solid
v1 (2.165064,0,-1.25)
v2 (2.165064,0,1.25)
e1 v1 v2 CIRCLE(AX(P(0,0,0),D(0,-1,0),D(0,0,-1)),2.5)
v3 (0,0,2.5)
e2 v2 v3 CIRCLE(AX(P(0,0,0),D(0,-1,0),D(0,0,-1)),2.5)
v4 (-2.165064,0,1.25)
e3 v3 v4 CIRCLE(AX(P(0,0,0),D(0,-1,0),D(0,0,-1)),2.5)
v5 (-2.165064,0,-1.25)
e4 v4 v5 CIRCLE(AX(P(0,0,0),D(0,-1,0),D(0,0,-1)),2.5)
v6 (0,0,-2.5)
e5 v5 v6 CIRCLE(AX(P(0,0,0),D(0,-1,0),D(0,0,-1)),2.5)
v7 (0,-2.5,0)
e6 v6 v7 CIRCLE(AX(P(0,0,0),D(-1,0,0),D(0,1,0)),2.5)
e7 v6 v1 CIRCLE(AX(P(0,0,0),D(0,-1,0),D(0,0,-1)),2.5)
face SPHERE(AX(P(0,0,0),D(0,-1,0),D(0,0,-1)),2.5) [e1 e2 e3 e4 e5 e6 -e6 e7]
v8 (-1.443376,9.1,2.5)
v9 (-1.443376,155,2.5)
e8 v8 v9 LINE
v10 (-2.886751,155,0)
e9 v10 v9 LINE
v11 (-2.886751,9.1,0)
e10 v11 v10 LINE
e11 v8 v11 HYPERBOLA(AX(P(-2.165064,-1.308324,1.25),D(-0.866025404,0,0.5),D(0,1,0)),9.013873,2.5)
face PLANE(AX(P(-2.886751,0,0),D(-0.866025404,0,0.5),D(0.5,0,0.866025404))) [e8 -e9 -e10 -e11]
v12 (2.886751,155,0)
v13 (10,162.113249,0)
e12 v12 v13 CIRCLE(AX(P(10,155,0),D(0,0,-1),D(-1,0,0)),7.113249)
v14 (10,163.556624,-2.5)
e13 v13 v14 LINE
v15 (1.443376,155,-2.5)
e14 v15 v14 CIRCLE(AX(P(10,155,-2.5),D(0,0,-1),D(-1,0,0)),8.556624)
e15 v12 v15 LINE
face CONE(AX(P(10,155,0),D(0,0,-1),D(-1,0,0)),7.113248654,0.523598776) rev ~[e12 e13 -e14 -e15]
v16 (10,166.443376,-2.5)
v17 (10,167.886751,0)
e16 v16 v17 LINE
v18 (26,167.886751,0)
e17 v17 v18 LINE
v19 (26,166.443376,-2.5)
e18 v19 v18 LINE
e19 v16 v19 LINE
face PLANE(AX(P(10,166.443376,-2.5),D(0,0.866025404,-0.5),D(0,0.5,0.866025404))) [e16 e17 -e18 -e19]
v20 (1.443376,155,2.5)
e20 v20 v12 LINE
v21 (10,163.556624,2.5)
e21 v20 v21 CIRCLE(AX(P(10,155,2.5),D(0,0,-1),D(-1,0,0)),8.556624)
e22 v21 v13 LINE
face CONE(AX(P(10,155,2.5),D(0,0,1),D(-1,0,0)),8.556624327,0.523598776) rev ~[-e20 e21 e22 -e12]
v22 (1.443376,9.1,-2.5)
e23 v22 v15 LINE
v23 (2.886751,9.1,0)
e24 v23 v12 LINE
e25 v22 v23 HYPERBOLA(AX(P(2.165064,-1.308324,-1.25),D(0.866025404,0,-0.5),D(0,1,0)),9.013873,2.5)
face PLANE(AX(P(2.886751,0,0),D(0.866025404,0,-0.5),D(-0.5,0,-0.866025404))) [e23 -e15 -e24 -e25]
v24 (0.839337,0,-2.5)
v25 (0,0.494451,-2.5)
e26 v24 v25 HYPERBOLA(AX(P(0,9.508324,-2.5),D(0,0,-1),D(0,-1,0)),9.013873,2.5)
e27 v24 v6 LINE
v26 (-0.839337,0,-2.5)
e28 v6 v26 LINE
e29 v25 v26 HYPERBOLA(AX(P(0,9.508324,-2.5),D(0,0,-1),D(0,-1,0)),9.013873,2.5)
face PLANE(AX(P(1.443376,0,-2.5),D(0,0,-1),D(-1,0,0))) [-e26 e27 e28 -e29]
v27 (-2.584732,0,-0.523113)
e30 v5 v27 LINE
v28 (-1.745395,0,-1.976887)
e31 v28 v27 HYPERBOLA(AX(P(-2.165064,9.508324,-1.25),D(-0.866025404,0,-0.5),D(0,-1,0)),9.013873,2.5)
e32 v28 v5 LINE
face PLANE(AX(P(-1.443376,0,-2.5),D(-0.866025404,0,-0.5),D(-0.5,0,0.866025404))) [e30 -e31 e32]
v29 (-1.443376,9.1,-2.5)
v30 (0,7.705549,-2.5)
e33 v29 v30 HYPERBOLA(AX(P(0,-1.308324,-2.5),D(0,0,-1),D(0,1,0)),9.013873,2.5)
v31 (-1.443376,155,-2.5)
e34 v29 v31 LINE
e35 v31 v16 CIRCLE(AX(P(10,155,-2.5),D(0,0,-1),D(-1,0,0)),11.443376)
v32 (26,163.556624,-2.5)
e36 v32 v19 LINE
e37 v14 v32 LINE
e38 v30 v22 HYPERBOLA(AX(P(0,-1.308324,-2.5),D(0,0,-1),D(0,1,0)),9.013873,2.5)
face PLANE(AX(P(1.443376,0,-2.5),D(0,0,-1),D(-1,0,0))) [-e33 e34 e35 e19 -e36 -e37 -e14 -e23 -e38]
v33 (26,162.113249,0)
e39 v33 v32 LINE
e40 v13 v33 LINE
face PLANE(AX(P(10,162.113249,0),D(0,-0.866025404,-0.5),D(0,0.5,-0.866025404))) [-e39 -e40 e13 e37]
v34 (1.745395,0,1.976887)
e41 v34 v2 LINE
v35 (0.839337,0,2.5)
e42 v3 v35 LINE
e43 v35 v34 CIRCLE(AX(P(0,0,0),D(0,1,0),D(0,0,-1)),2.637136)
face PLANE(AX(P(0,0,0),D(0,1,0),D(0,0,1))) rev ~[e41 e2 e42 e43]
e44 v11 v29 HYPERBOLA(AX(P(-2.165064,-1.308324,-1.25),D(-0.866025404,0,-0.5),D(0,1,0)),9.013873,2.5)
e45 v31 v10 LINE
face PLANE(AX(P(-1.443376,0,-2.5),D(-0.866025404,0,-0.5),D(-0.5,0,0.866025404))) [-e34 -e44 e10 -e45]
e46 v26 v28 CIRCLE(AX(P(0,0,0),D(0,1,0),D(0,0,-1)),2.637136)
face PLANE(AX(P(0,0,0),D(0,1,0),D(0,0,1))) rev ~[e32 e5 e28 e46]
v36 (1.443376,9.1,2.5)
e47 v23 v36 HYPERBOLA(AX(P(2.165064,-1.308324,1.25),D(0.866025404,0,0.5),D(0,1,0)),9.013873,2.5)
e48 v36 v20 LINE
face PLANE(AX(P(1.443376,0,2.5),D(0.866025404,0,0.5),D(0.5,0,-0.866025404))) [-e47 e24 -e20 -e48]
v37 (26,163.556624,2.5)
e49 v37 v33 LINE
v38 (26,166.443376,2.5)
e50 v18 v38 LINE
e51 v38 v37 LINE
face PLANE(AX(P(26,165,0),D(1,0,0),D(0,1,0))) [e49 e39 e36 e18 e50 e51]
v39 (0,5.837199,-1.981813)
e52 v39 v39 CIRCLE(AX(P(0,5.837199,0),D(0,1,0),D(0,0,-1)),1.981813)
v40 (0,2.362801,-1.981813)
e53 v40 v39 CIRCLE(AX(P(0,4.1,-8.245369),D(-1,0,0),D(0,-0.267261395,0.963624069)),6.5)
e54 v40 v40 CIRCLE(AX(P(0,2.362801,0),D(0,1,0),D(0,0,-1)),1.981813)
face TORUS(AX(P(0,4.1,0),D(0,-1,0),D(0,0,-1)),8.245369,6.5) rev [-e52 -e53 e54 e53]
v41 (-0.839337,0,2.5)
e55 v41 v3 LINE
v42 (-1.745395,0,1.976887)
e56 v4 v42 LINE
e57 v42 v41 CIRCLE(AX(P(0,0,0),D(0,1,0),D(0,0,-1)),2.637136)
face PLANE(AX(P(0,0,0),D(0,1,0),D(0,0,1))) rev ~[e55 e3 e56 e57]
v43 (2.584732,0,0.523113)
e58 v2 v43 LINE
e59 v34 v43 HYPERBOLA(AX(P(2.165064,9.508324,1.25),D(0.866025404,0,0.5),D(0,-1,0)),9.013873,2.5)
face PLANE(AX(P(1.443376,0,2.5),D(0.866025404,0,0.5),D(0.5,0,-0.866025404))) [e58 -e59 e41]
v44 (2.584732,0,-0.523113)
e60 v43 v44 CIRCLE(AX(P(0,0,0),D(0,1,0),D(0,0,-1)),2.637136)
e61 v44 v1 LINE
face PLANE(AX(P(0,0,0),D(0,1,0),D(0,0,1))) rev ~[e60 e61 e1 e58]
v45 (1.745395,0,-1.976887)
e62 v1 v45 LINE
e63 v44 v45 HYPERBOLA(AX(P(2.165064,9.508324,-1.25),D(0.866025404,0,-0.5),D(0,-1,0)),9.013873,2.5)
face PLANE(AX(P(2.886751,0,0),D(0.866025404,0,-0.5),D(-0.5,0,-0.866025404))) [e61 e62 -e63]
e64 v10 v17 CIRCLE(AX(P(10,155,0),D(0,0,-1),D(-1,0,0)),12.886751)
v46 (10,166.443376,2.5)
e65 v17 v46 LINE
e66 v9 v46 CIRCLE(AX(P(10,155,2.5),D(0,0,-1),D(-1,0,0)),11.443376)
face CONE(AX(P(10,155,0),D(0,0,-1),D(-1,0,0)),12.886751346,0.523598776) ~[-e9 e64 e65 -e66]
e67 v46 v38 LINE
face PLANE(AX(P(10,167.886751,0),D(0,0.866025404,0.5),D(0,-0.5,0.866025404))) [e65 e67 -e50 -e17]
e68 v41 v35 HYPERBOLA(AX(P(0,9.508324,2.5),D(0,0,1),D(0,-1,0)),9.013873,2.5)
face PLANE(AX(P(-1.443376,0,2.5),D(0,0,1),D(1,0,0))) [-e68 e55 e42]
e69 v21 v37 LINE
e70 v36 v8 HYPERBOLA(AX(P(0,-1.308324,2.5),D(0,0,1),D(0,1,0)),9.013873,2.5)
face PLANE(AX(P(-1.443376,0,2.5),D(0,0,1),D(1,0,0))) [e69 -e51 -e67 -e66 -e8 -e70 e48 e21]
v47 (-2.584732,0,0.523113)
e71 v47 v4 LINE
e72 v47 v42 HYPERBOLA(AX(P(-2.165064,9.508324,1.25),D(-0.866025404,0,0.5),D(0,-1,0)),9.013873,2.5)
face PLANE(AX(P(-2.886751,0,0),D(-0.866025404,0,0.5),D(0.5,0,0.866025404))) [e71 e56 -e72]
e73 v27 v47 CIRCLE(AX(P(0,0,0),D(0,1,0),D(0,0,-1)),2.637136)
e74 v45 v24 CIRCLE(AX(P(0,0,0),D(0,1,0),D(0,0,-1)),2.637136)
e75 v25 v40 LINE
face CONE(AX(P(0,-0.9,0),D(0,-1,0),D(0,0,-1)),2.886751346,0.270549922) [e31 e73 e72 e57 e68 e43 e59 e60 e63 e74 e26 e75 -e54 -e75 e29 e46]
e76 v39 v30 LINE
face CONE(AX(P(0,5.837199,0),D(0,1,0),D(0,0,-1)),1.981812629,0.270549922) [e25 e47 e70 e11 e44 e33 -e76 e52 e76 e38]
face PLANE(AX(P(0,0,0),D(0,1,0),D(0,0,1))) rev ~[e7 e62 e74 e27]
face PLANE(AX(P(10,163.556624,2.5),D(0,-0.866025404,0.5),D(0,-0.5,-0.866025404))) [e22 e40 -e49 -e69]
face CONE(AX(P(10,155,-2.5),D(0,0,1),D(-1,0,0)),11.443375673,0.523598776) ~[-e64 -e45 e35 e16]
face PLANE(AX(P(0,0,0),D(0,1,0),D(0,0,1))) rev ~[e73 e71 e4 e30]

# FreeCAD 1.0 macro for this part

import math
import FreeCAD as App
import Part
import Sketcher
Q = App.Units.Quantity


def add_polygon(sketch, points):
    """Adds a closed chain of lines whose ends are joined by coincident constraints."""
    first, n = sketch.GeometryCount, len(points)
    for a, b in zip(points, points[1:] + points[:1]):
        sketch.addGeometry(Part.LineSegment(App.Vector(*a, 0), App.Vector(*b, 0)), False)
    for i in range(n):
        sketch.addConstraint(Sketcher.Constraint("Coincident", first + i, 2, first + (i + 1) % n, 1))

doc = App.newDocument("Part")
params = doc.addObject("Spreadsheet::Sheet", "Params")
for row, (alias, value) in enumerate([
    ("sketch2_radius", "10 mm"),
    ("sketch2_width", "16 mm"),
    ("sketch2_height", "155 mm"),
    ("sketch3_radius", "2.5 mm"),
    ("revolution_angle", "360 deg"),
    ("sketch4_radius", "6.5 mm"),
    ("sketch4_height", "10 mm"),
    ("groove_angle", "360 deg"),
], start=1):
    params.set(f"A{row}", alias)
    params.set(f"B{row}", "=" + value)
    params.setAlias(f"B{row}", alias)

body = doc.addObject("PartDesign::Body", "Body")

sketch1 = body.newObject("Sketcher::SketchObject", "Sketch")
sketch1.AttachmentSupport = (doc.getObject("XZ_Plane"), [""])
sketch1.MapMode = "FlatFace"
add_polygon(sketch1, [(-1.4, -2.5), (-2.9, 0), (-1.4, 2.5), (1.4, 2.5), (2.9, 0), (1.4, -2.5)])
sketch1.addConstraint([
    Sketcher.Constraint("Horizontal", 2),
    Sketcher.Constraint("Horizontal", 5),
    Sketcher.Constraint("Symmetric", 0, 2, 3, 2, -1, 1),
    Sketcher.Constraint("Symmetric", 1, 2, 4, 2, -1, 1),
    Sketcher.Constraint("PointOnObject", 0, 2, -1),
    Sketcher.Constraint("Parallel", 0, 3),
    Sketcher.Constraint("Vertical", 2, 2, 4, 2),
    Sketcher.Constraint("Angle", 0, Q("120 deg")),
    Sketcher.Constraint("DistanceY", 4, 2, 2, 2, 5.0),
    Sketcher.Constraint("DistanceX", 2, 1, 2, 2, 2.886751),
])

sketch2 = body.newObject("Sketcher::SketchObject", "Sketch001")
sketch2.AttachmentSupport = (doc.getObject("XY_Plane"), [""])
sketch2.MapMode = "FlatFace"
sketch2.addGeometry([
    Part.LineSegment(App.Vector(0, 0, 0), App.Vector(0, 155, 0)),
    Part.ArcOfCircle(Part.Circle(App.Vector(10, 155, 0), App.Vector(0, 0, 1), 10), math.radians(90), math.radians(180)),
    Part.LineSegment(App.Vector(10, 165, 0), App.Vector(26, 165, 0)),
], False)
sketch2.addConstraint([
    Sketcher.Constraint("Tangent", 0, 2, 1, 2),
    Sketcher.Constraint("Tangent", 1, 1, 2, 1),
    Sketcher.Constraint("Vertical", 0),
    Sketcher.Constraint("Horizontal", 2),
    Sketcher.Constraint("Coincident", 0, 1, -1, 1),
    Sketcher.Constraint("Radius", 1, 10.0),
    Sketcher.Constraint("DistanceX", 2, 1, 2, 2, 16.0),
    Sketcher.Constraint("DistanceY", 0, 1, 0, 2, 155.0),
])
sketch2.setExpression("Constraints[5]", "Params.sketch2_radius")
sketch2.setExpression("Constraints[6]", "Params.sketch2_width")
sketch2.setExpression("Constraints[7]", "Params.sketch2_height")
doc.recompute()

additivepipe = body.newObject("PartDesign::AdditivePipe", "AdditivePipe")
additivepipe.Profile = sketch1
additivepipe.Spine = (sketch2, ["Edge1", "Edge2", "Edge3"])

sketch3 = body.newObject("Sketcher::SketchObject", "Sketch002")
sketch3.AttachmentSupport = (doc.getObject("YZ_Plane"), [""])
sketch3.MapMode = "FlatFace"
sketch3.addGeometry([
    Part.LineSegment(App.Vector(2.5, 0, 0), App.Vector(-2.5, 0, 0)),
    Part.ArcOfCircle(Part.Circle(App.Vector(0, 0, 0), App.Vector(0, 0, 1), 2.5), math.radians(180), math.radians(360)),
], False)
sketch3.addConstraint([
    Sketcher.Constraint("Coincident", 0, 1, 1, 2),
    Sketcher.Constraint("Coincident", 1, 1, 0, 2),
    Sketcher.Constraint("Horizontal", 0),
    Sketcher.Constraint("Coincident", 1, 3, -1, 1),
    Sketcher.Constraint("PointOnObject", 0, 1, -1),
    Sketcher.Constraint("Radius", 1, 2.5),
])
sketch3.setExpression("Constraints[5]", "Params.sketch3_radius")
revolution = body.newObject("PartDesign::Revolution", "Revolution")
revolution.Profile = sketch3
revolution.ReferenceAxis = (sketch3, ["H_Axis"])
revolution.setExpression("Angle", "Params.revolution_angle")

sketch4 = body.newObject("Sketcher::SketchObject", "Sketch003")
sketch4.AttachmentSupport = (doc.getObject("XY_Plane"), [""])
sketch4.MapMode = "FlatFace"
sketch4.addGeometry([
    Part.LineSegment(App.Vector(-2.9, -0.9, 0), App.Vector(-2, 2.4, 0)),
    Part.ArcOfCircle(Part.Circle(App.Vector(-8.2, 4.1, 0), App.Vector(0, 0, 1), 6.5), math.radians(-16), math.radians(16)),
    Part.LineSegment(App.Vector(-2, 5.8, 0), App.Vector(-2.9, 9.1, 0)),
    Part.LineSegment(App.Vector(-2.9, 9.1, 0), App.Vector(-2.9, -0.9, 0)),
], False)
sketch4.addConstraint([
    Sketcher.Constraint("Tangent", 0, 2, 1, 1),
    Sketcher.Constraint("Tangent", 1, 2, 2, 1),
    Sketcher.Constraint("Coincident", 2, 2, 3, 1),
    Sketcher.Constraint("Coincident", 3, 2, 0, 1),
    Sketcher.Constraint("Vertical", 3),
    Sketcher.Constraint("Vertical", 0, 2, 1, 2),
    Sketcher.Constraint("Radius", 1, 6.5),
    Sketcher.Constraint("DistanceY", 3, 2, 3, 1, 10.0),
    Sketcher.Constraint("DistanceY", -1, 1, 1, 3, 4.1),
    Sketcher.Constraint("DistanceY", -1, 1, 0, 2, 2.362801),
    Sketcher.Constraint("DistanceX", 1, 3, -1, 1, 8.245369),
])
sketch4.setExpression("Constraints[6]", "Params.sketch4_radius")
sketch4.setExpression("Constraints[7]", "Params.sketch4_height")
groove = body.newObject("PartDesign::Groove", "Groove")
groove.Profile = sketch4
groove.ReferenceAxis = (sketch4, ["V_Axis"])
groove.setExpression("Angle", "Params.groove_angle")

doc.recompute()
